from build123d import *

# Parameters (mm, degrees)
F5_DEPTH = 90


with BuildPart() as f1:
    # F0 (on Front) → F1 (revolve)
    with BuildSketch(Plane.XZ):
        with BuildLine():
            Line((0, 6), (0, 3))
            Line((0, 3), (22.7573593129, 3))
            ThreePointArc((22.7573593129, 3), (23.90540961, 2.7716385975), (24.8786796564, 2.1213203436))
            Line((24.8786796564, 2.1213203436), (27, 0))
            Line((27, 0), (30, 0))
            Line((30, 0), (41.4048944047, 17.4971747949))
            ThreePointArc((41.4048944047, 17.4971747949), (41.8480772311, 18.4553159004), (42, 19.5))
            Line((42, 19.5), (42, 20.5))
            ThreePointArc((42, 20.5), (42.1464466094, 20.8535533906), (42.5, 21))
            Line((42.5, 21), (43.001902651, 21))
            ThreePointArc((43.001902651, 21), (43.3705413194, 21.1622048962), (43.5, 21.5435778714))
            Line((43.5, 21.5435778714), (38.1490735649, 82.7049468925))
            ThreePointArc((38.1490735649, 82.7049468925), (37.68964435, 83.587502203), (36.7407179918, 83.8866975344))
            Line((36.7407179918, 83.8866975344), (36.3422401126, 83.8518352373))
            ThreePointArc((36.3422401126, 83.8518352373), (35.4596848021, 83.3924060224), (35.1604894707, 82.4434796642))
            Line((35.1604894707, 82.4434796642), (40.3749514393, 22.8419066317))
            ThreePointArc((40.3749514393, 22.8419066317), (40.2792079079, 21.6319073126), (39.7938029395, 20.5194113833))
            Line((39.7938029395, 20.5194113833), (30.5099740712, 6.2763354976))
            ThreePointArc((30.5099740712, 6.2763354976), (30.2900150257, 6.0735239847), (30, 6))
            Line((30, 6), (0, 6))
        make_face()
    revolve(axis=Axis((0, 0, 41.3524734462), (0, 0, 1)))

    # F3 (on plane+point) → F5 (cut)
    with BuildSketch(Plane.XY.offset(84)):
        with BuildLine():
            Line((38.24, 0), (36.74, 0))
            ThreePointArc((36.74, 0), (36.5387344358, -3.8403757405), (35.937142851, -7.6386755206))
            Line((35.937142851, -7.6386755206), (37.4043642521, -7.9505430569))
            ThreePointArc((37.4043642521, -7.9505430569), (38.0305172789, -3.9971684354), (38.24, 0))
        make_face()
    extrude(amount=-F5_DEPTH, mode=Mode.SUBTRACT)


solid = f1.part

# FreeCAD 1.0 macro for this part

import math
import FreeCAD as App
import Part
import Sketcher

V = App.Vector
Q = App.Units.Quantity

doc = App.newDocument("Part")
params = doc.addObject("Spreadsheet::Sheet", "Params")
for row, (alias, value) in enumerate([
    ("sketch1_radius", "3 mm"),
    ("sketch1_radius2", "0.5 mm"),
    ("sketch1_radius3", "1.3 mm"),
    ("sketch1_width", "3 mm"),
    ("sketch1_width2", "30 mm"),
    ("revolution_angle", "360 deg"),
    ("sketch2_radius", "36.74 mm"),
    ("sketch2_radius2", "38.24 mm"),
    ("pocket1_length", "90 mm"),
], start=1):
    params.set(f"A{row}", alias)
    params.set(f"B{row}", "=" + value)
    params.setAlias(f"B{row}", alias)

body = doc.addObject("PartDesign::Body", "Body")

sketch1 = doc.addObject("Sketcher::SketchObject", "Sketch")
body.addObject(sketch1)
sketch1.AttachmentSupport = (doc.XZ_Plane, [""])
sketch1.MapMode = "FlatFace"
sketch1.addGeometry(Part.LineSegment(V(0, 6, 0), V(0, 3, 0)), False)
sketch1.addGeometry(Part.LineSegment(V(0, 3, 0), V(22.757359, 3, 0)), False)
sketch1.addGeometry(Part.ArcOfCircle(Part.Circle(V(22.757359, 0, 0), V(0, 0, 1), 3), math.radians(45), math.radians(90)), False)
sketch1.addGeometry(Part.LineSegment(V(24.87868, 2.12132, 0), V(27, 0, 0)), False)
sketch1.addGeometry(Part.LineSegment(V(27, 0, 0), V(30, 0, 0)), False)
sketch1.addGeometry(Part.LineSegment(V(30, 0, 0), V(41.404894, 17.497175, 0)), False)
sketch1.addGeometry(Part.ArcOfCircle(Part.Circle(V(38.332198, 19.5, 0), V(0, 0, 1), 3.667802), math.radians(-33.096851), math.radians(0)), False)
sketch1.addGeometry(Part.LineSegment(V(42, 19.5, 0), V(42, 20.5, 0)), False)
sketch1.addGeometry(Part.ArcOfCircle(Part.Circle(V(42.5, 20.5, 0), V(0, 0, 1), 0.5), math.radians(90), math.radians(180)), False)
sketch1.addGeometry(Part.LineSegment(V(42.5, 21, 0), V(43.001903, 21, 0)), False)
sketch1.addGeometry(Part.ArcOfCircle(Part.Circle(V(43.001903, 21.5, 0), V(0, 0, 1), 0.5), math.radians(-90), math.radians(5)), False)
sketch1.addGeometry(Part.LineSegment(V(43.5, 21.543578, 0), V(38.149074, 82.704947, 0)), False)
sketch1.addGeometry(Part.ArcOfCircle(Part.Circle(V(36.85402, 82.591644, 0), V(0, 0, 1), 1.3), math.radians(5), math.radians(95)), False)
sketch1.addGeometry(Part.LineSegment(V(36.740718, 83.886698, 0), V(36.34224, 83.851835, 0)), False)
sketch1.addGeometry(Part.ArcOfCircle(Part.Circle(V(36.455543, 82.556782, 0), V(0, 0, 1), 1.3), math.radians(95), math.radians(185)), False)
sketch1.addGeometry(Part.LineSegment(V(35.160489, 82.44348, 0), V(40.374951, 22.841907, 0)), False)
sketch1.addGeometry(Part.ArcOfCircle(Part.Circle(V(36.721106, 22.522237, 0), V(0, 0, 1), 3.667802), math.radians(-33.096851), math.radians(5)), False)
sketch1.addGeometry(Part.LineSegment(V(39.793803, 20.519411, 0), V(30.509974, 6.276335, 0)), False)
sketch1.addGeometry(Part.ArcOfCircle(Part.Circle(V(30, 6.608743, 0), V(0, 0, 1), 0.608743), math.radians(-90), math.radians(-33.096851)), False)
sketch1.addGeometry(Part.LineSegment(V(30, 6, 0), V(0, 6, 0)), False)
sketch1.addConstraint(Sketcher.Constraint("Coincident", 0, 2, 1, 1))
sketch1.addConstraint(Sketcher.Constraint("Tangent", 1, 2, 2, 2))
sketch1.addConstraint(Sketcher.Constraint("Tangent", 2, 1, 3, 1))
sketch1.addConstraint(Sketcher.Constraint("Coincident", 3, 2, 4, 1))
sketch1.addConstraint(Sketcher.Constraint("Coincident", 4, 2, 5, 1))
sketch1.addConstraint(Sketcher.Constraint("Tangent", 5, 2, 6, 1))
sketch1.addConstraint(Sketcher.Constraint("Tangent", 6, 2, 7, 1))
sketch1.addConstraint(Sketcher.Constraint("Tangent", 7, 2, 8, 2))
sketch1.addConstraint(Sketcher.Constraint("Tangent", 8, 1, 9, 1))
sketch1.addConstraint(Sketcher.Constraint("Tangent", 9, 2, 10, 1))
sketch1.addConstraint(Sketcher.Constraint("Tangent", 10, 2, 11, 1))
sketch1.addConstraint(Sketcher.Constraint("Tangent", 11, 2, 12, 1))
sketch1.addConstraint(Sketcher.Constraint("Tangent", 12, 2, 13, 1))
sketch1.addConstraint(Sketcher.Constraint("Tangent", 13, 2, 14, 1))
sketch1.addConstraint(Sketcher.Constraint("Tangent", 14, 2, 15, 1))
sketch1.addConstraint(Sketcher.Constraint("Tangent", 15, 2, 16, 2))
sketch1.addConstraint(Sketcher.Constraint("Tangent", 16, 1, 17, 1))
sketch1.addConstraint(Sketcher.Constraint("Tangent", 17, 2, 18, 2))
sketch1.addConstraint(Sketcher.Constraint("Tangent", 18, 1, 19, 1))
sketch1.addConstraint(Sketcher.Constraint("Coincident", 19, 2, 0, 1))
sketch1.addConstraint(Sketcher.Constraint("Vertical", 0))
sketch1.addConstraint(Sketcher.Constraint("Horizontal", 1))
sketch1.addConstraint(Sketcher.Constraint("Horizontal", 4))
sketch1.addConstraint(Sketcher.Constraint("Vertical", 7))
sketch1.addConstraint(Sketcher.Constraint("Horizontal", 9))
sketch1.addConstraint(Sketcher.Constraint("Horizontal", 19))
sketch1.addConstraint(Sketcher.Constraint("Equal", 8, 10))
sketch1.addConstraint(Sketcher.Constraint("Equal", 12, 14))
sketch1.addConstraint(Sketcher.Constraint("Equal", 6, 16))
sketch1.addConstraint(Sketcher.Constraint("PointOnObject", 2, 3, -1))
sketch1.addConstraint(Sketcher.Constraint("PointOnObject", 0, 2, -2))
sketch1.addConstraint(Sketcher.Constraint("PointOnObject", 3, 2, -1))
sketch1.addConstraint(Sketcher.Constraint("Perpendicular", 11, 13))
sketch1.addConstraint(Sketcher.Constraint("Perpendicular", 13, 15))
sketch1.addConstraint(Sketcher.Constraint("Parallel", 5, 17))
sketch1.addConstraint(Sketcher.Constraint("Vertical", 18, 3, 4, 2))
sketch1.addConstraint(Sketcher.Constraint("Equal", 4, 0))
sketch1.addConstraint(Sketcher.Constraint("Radius", 2, Q("3 mm")))
sketch1.addConstraint(Sketcher.Constraint("Radius", 8, Q("0.5 mm")))
sketch1.addConstraint(Sketcher.Constraint("Radius", 12, Q("1.3 mm")))
sketch1.addConstraint(Sketcher.Constraint("DistanceX", 4, 1, 4, 2, Q("3 mm")))
sketch1.addConstraint(Sketcher.Constraint("DistanceX", 19, 2, 19, 1, Q("30 mm")))
sketch1.addConstraint(Sketcher.Constraint("DistanceY", 7, 1, 7, 2, Q("1 mm")))
sketch1.addConstraint(Sketcher.Constraint("Angle", 3, Q("-45 deg")))
sketch1.addConstraint(Sketcher.Constraint("Angle", 11, Q("95 deg")))
sketch1.addConstraint(Sketcher.Constraint("DistanceX", -1, 1, 6, 2, Q("42 mm")))
sketch1.addConstraint(Sketcher.Constraint("DistanceY", -1, 1, 8, 1, Q("21 mm")))
sketch1.addConstraint(Sketcher.Constraint("DistanceX", 8, 1, 10, 2, Q("1 mm")))
sketch1.addConstraint(Sketcher.Constraint("Distance", 13, Q("0.4 mm")))
sketch1.addConstraint(Sketcher.Constraint("Radius", 6, Q("3.667802 mm")))
sketch1.addConstraint(Sketcher.Constraint("Radius", 18, Q("0.608743 mm")))
sketch1.addConstraint(Sketcher.Constraint("DistanceY", 16, 3, 13, 2, Q("61.329599 mm")))
sketch1.setExpression("Constraints[37]", "Params.sketch1_radius")
sketch1.setExpression("Constraints[38]", "Params.sketch1_radius2")
sketch1.setExpression("Constraints[39]", "Params.sketch1_radius3")
sketch1.setExpression("Constraints[40]", "Params.sketch1_width")
sketch1.setExpression("Constraints[41]", "Params.sketch1_width2")
revolution = doc.addObject("PartDesign::Revolution", "Revolution")
body.addObject(revolution)
revolution.Profile = sketch1
revolution.ReferenceAxis = (sketch1, ["V_Axis"])
revolution.setExpression("Angle", "Params.revolution_angle")

sketch2 = doc.addObject("Sketcher::SketchObject", "Sketch001")
body.addObject(sketch2)
sketch2.AttachmentSupport = (doc.XY_Plane, [""])
sketch2.MapMode = "FlatFace"
sketch2.AttachmentOffset = App.Placement(V(0, 0, 84), App.Rotation())
sketch2.addGeometry(Part.LineSegment(V(38.24, 0, 0), V(36.74, 0, 0)), False)
sketch2.addGeometry(Part.ArcOfCircle(Part.Circle(V(0, 0, 0), V(0, 0, 1), 36.74), math.radians(-12), math.radians(0)), False)
sketch2.addGeometry(Part.LineSegment(V(35.937143, -7.638676, 0), V(37.404364, -7.950543, 0)), False)
sketch2.addGeometry(Part.ArcOfCircle(Part.Circle(V(0, 0, 0), V(0, 0, 1), 38.24), math.radians(-12), math.radians(0)), False)
sketch2.addConstraint(Sketcher.Constraint("Coincident", 0, 2, 1, 2))
sketch2.addConstraint(Sketcher.Constraint("Coincident", 1, 1, 2, 1))
sketch2.addConstraint(Sketcher.Constraint("Coincident", 2, 2, 3, 1))
sketch2.addConstraint(Sketcher.Constraint("Coincident", 3, 2, 0, 1))
sketch2.addConstraint(Sketcher.Constraint("Horizontal", 0))
sketch2.addConstraint(Sketcher.Constraint("Coincident", 1, 3, -1, 1))
sketch2.addConstraint(Sketcher.Constraint("Coincident", 3, 3, -1, 1))
sketch2.addConstraint(Sketcher.Constraint("PointOnObject", 0, 2, -1))
sketch2.addConstraint(Sketcher.Constraint("Angle", 2, Q("-12 deg")))
sketch2.addConstraint(Sketcher.Constraint("Radius", 1, Q("36.74 mm")))
sketch2.addConstraint(Sketcher.Constraint("Radius", 3, Q("38.24 mm")))
sketch2.addConstraint(Sketcher.Constraint("DistanceX", -1, 1, 1, 1, Q("35.937143 mm")))
sketch2.setExpression("Constraints[9]", "Params.sketch2_radius")
sketch2.setExpression("Constraints[10]", "Params.sketch2_radius2")
pocket1 = doc.addObject("PartDesign::Pocket", "Pocket")
body.addObject(pocket1)
pocket1.Profile = sketch2
pocket1.setExpression("Length", "Params.pocket1_length")

doc.recompute()
